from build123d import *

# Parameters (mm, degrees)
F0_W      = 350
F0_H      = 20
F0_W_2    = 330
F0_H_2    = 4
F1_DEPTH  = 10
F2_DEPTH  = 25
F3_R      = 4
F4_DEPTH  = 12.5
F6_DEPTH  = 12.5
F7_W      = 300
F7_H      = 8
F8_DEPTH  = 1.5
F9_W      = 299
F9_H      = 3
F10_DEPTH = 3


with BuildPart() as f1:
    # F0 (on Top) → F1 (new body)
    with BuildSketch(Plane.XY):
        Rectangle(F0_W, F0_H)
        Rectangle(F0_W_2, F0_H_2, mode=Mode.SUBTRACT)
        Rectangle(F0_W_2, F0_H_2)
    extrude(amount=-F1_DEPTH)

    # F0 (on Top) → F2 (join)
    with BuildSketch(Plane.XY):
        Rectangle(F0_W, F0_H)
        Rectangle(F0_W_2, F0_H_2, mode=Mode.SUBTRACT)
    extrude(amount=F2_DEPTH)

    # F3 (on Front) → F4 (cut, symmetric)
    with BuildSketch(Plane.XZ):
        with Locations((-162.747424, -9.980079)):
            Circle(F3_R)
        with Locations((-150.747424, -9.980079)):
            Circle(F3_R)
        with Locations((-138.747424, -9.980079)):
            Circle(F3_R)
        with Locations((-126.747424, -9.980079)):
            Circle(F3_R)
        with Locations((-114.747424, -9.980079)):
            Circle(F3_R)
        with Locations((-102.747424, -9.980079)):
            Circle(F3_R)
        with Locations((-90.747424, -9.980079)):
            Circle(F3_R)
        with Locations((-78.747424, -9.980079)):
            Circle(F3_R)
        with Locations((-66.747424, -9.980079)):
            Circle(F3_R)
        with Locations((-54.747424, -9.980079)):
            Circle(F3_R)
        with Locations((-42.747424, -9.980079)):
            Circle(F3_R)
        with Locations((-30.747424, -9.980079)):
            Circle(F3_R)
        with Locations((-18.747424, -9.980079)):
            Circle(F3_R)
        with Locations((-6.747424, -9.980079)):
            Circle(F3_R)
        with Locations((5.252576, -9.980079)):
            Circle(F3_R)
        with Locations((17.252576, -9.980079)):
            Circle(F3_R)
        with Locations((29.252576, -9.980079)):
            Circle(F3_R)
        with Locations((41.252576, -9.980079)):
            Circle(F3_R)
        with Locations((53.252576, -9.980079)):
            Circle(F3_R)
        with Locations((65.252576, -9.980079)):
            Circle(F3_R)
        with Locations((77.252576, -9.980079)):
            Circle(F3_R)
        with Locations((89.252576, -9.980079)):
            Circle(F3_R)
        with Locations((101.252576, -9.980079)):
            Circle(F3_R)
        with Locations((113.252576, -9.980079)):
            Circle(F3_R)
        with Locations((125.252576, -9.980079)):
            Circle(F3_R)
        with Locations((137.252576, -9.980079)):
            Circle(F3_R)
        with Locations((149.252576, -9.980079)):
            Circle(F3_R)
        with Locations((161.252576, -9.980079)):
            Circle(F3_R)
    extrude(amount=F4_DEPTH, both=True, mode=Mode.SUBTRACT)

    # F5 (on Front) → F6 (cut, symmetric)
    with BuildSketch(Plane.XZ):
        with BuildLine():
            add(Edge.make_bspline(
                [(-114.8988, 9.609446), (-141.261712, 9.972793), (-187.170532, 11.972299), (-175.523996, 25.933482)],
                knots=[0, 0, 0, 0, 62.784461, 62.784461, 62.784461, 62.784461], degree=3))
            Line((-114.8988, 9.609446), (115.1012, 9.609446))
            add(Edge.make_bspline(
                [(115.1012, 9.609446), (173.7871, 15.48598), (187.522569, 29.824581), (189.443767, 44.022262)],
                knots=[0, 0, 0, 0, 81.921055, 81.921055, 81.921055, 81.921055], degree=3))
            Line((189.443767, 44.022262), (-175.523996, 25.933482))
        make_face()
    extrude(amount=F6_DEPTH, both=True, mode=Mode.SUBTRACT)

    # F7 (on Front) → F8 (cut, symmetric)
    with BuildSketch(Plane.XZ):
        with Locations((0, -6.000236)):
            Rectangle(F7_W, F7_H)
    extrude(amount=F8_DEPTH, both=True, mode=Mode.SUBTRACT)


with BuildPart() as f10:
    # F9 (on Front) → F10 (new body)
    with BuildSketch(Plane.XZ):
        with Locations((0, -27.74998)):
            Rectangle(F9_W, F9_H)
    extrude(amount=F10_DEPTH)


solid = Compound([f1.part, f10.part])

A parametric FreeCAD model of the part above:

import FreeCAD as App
import Part
import Sketcher

V = App.Vector

doc = App.newDocument("Part")
params = doc.addObject("Spreadsheet::Sheet", "Params")
for row, (alias, value) in enumerate([
    ("sketch1_width", "350 mm"),
    ("sketch1_height", "20 mm"),
    ("pad1_length", "10 mm"),
    ("sketch2_width", "350 mm"),
    ("sketch2_width2", "330 mm"),
    ("sketch2_height", "20 mm"),
    ("sketch2_height2", "4 mm"),
    ("pad2_length", "25 mm"),
    ("sketch3_diameter", "8 mm"),
    ("pocket1_length", "25 mm"),
    ("pocket2_length", "25 mm"),
    ("sketch5_width", "300 mm"),
    ("sketch5_height", "8 mm"),
    ("pocket3_length", "3 mm"),
    ("sketch6_width", "299 mm"),
    ("sketch6_height", "3 mm"),
    ("pad3_length", "3 mm"),
], start=1):
    params.set(f"A{row}", alias)
    params.set(f"B{row}", "=" + value)
    params.setAlias(f"B{row}", alias)

body = doc.addObject("PartDesign::Body", "Body")

# Sketch on XY plane
sketch1 = body.newObject("Sketcher::SketchObject", "Sketch")
sketch1.AttachmentSupport = (doc.getObject("XY_Plane"), [""])
sketch1.MapMode = "FlatFace"
sketch1.addGeometry([
    Part.LineSegment(V(-175, 10, 0), V(-175, -10, 0)),
    Part.LineSegment(V(-175, -10, 0), V(175, -10, 0)),
    Part.LineSegment(V(175, -10, 0), V(175, 10, 0)),
    Part.LineSegment(V(175, 10, 0), V(-175, 10, 0)),
], False)
sketch1.addConstraint([
    Sketcher.Constraint("Coincident", 0, 2, 1, 1),
    Sketcher.Constraint("Coincident", 1, 2, 2, 1),
    Sketcher.Constraint("Coincident", 2, 2, 3, 1),
    Sketcher.Constraint("Coincident", 3, 2, 0, 1),
    Sketcher.Constraint("Vertical", 0),
    Sketcher.Constraint("Horizontal", 1),
    Sketcher.Constraint("Vertical", 2),
    Sketcher.Constraint("Horizontal", 3),
    Sketcher.Constraint("Symmetric", 0, 2, 2, 2, -1, 1),
    Sketcher.Constraint("DistanceX", 1, 1, 1, 2, 350.0),
    Sketcher.Constraint("DistanceY", 0, 2, 0, 1, 20.0),
])
sketch1.setExpression("Constraints[9]", "Params.sketch1_width")
sketch1.setExpression("Constraints[10]", "Params.sketch1_height")
pad1 = body.newObject("PartDesign::Pad", "Pad")
pad1.Profile = sketch1
pad1.setExpression("Length", "Params.pad1_length")
pad1.Reversed = True

# Sketch on XY plane
sketch2 = body.newObject("Sketcher::SketchObject", "Sketch001")
sketch2.AttachmentSupport = (doc.getObject("XY_Plane"), [""])
sketch2.MapMode = "FlatFace"
sketch2.addGeometry([
    Part.LineSegment(V(-175, 10, 0), V(-175, -10, 0)),  # 0
    Part.LineSegment(V(-175, -10, 0), V(175, -10, 0)),  # 1
    Part.LineSegment(V(175, -10, 0), V(175, 10, 0)),  # 2
    Part.LineSegment(V(175, 10, 0), V(-175, 10, 0)),  # 3
    Part.LineSegment(V(165, -2, 0), V(-165, -2, 0)),  # 4
    Part.LineSegment(V(-165, -2, 0), V(-165, 2, 0)),  # 5
    Part.LineSegment(V(-165, 2, 0), V(165, 2, 0)),  # 6
    Part.LineSegment(V(165, 2, 0), V(165, -2, 0)),  # 7
], False)
sketch2.addConstraint([
    Sketcher.Constraint("Coincident", 0, 2, 1, 1),
    Sketcher.Constraint("Coincident", 1, 2, 2, 1),
    Sketcher.Constraint("Coincident", 2, 2, 3, 1),
    Sketcher.Constraint("Coincident", 3, 2, 0, 1),
    Sketcher.Constraint("Coincident", 4, 2, 5, 1),
    Sketcher.Constraint("Coincident", 5, 2, 6, 1),
    Sketcher.Constraint("Coincident", 6, 2, 7, 1),
    Sketcher.Constraint("Coincident", 7, 2, 4, 1),
    Sketcher.Constraint("Vertical", 0),
    Sketcher.Constraint("Horizontal", 1),
    Sketcher.Constraint("Vertical", 2),
    Sketcher.Constraint("Horizontal", 3),
    Sketcher.Constraint("Horizontal", 4),
    Sketcher.Constraint("Vertical", 5),
    Sketcher.Constraint("Horizontal", 6),
    Sketcher.Constraint("Vertical", 7),
    Sketcher.Constraint("Symmetric", 0, 2, 2, 2, -1, 1),
    Sketcher.Constraint("Symmetric", 4, 2, 6, 2, -1, 1),
    Sketcher.Constraint("DistanceX", 1, 1, 1, 2, 350.0),
    Sketcher.Constraint("DistanceX", 4, 2, 4, 1, 330.0),
    Sketcher.Constraint("DistanceY", 0, 2, 0, 1, 20.0),
    Sketcher.Constraint("DistanceY", 5, 1, 5, 2, 4.0),
])
sketch2.setExpression("Constraints[18]", "Params.sketch2_width")
sketch2.setExpression("Constraints[19]", "Params.sketch2_width2")
sketch2.setExpression("Constraints[20]", "Params.sketch2_height")
sketch2.setExpression("Constraints[21]", "Params.sketch2_height2")
pad2 = body.newObject("PartDesign::Pad", "Pad001")
pad2.Profile = sketch2
pad2.setExpression("Length", "Params.pad2_length")

# Sketch on XZ plane
sketch3 = body.newObject("Sketcher::SketchObject", "Sketch002")
sketch3.AttachmentSupport = (doc.getObject("XZ_Plane"), [""])
sketch3.MapMode = "FlatFace"
sketch3.addGeometry([
    Part.Circle(V(-162.7, -10, 0), V(0, 0, 1), 4),  # 0
    Part.Circle(V(-150.7, -10, 0), V(0, 0, 1), 4),  # 1
    Part.Circle(V(-138.7, -10, 0), V(0, 0, 1), 4),  # 2
    Part.Circle(V(-126.7, -10, 0), V(0, 0, 1), 4),  # 3
    Part.Circle(V(-114.7, -10, 0), V(0, 0, 1), 4),  # 4
    Part.Circle(V(-102.7, -10, 0), V(0, 0, 1), 4),  # 5
    Part.Circle(V(-90.7, -10, 0), V(0, 0, 1), 4),  # 6
    Part.Circle(V(-78.7, -10, 0), V(0, 0, 1), 4),  # 7
    Part.Circle(V(-66.7, -10, 0), V(0, 0, 1), 4),  # 8
    Part.Circle(V(-54.7, -10, 0), V(0, 0, 1), 4),  # 9
    Part.Circle(V(-42.7, -10, 0), V(0, 0, 1), 4),  # 10
    Part.Circle(V(-30.7, -10, 0), V(0, 0, 1), 4),  # 11
    Part.Circle(V(-18.7, -10, 0), V(0, 0, 1), 4),  # 12
    Part.Circle(V(-6.7, -10, 0), V(0, 0, 1), 4),  # 13
    Part.Circle(V(5.3, -10, 0), V(0, 0, 1), 4),  # 14
    Part.Circle(V(17.3, -10, 0), V(0, 0, 1), 4),  # 15
    Part.Circle(V(29.3, -10, 0), V(0, 0, 1), 4),  # 16
    Part.Circle(V(41.3, -10, 0), V(0, 0, 1), 4),  # 17
    Part.Circle(V(53.3, -10, 0), V(0, 0, 1), 4),  # 18
    Part.Circle(V(65.3, -10, 0), V(0, 0, 1), 4),  # 19
    Part.Circle(V(77.3, -10, 0), V(0, 0, 1), 4),  # 20
    Part.Circle(V(89.3, -10, 0), V(0, 0, 1), 4),  # 21
    Part.Circle(V(101.3, -10, 0), V(0, 0, 1), 4),  # 22
    Part.Circle(V(113.3, -10, 0), V(0, 0, 1), 4),  # 23
    Part.Circle(V(125.3, -10, 0), V(0, 0, 1), 4),  # 24
    Part.Circle(V(137.3, -10, 0), V(0, 0, 1), 4),  # 25
    Part.Circle(V(149.3, -10, 0), V(0, 0, 1), 4),  # 26
    Part.Circle(V(161.3, -10, 0), V(0, 0, 1), 4),  # 27
], False)
sketch3.addConstraint([
    Sketcher.Constraint("Equal", 0, 1),
    Sketcher.Constraint("Equal", 1, 2),
    Sketcher.Constraint("Equal", 2, 3),
    Sketcher.Constraint("Equal", 3, 4),
    Sketcher.Constraint("Equal", 4, 5),
    Sketcher.Constraint("Equal", 5, 6),
    Sketcher.Constraint("Equal", 6, 7),
    Sketcher.Constraint("Equal", 7, 8),
    Sketcher.Constraint("Equal", 8, 9),
    Sketcher.Constraint("Equal", 9, 10),
    Sketcher.Constraint("Equal", 10, 11),
    Sketcher.Constraint("Equal", 11, 12),
    Sketcher.Constraint("Equal", 12, 13),
    Sketcher.Constraint("Equal", 13, 14),
    Sketcher.Constraint("Equal", 14, 15),
    Sketcher.Constraint("Equal", 15, 16),
    Sketcher.Constraint("Equal", 16, 17),
    Sketcher.Constraint("Equal", 17, 18),
    Sketcher.Constraint("Equal", 18, 19),
    Sketcher.Constraint("Equal", 19, 20),
    Sketcher.Constraint("Equal", 20, 21),
    Sketcher.Constraint("Equal", 21, 22),
    Sketcher.Constraint("Equal", 22, 23),
    Sketcher.Constraint("Equal", 23, 24),
    Sketcher.Constraint("Equal", 24, 25),
    Sketcher.Constraint("Equal", 25, 26),
    Sketcher.Constraint("Equal", 26, 27),
    Sketcher.Constraint("Horizontal", 0, 3, 1, 3),
    Sketcher.Constraint("Horizontal", 1, 3, 2, 3),
    Sketcher.Constraint("Horizontal", 2, 3, 3, 3),
    Sketcher.Constraint("Horizontal", 3, 3, 4, 3),
    Sketcher.Constraint("Horizontal", 4, 3, 5, 3),
    Sketcher.Constraint("Horizontal", 5, 3, 6, 3),
    Sketcher.Constraint("Horizontal", 6, 3, 7, 3),
    Sketcher.Constraint("Horizontal", 7, 3, 8, 3),
    Sketcher.Constraint("Horizontal", 8, 3, 9, 3),
    Sketcher.Constraint("Horizontal", 9, 3, 10, 3),
    Sketcher.Constraint("Horizontal", 10, 3, 11, 3),
    Sketcher.Constraint("Horizontal", 11, 3, 12, 3),
    Sketcher.Constraint("Horizontal", 12, 3, 13, 3),
    Sketcher.Constraint("Horizontal", 13, 3, 14, 3),
    Sketcher.Constraint("Horizontal", 14, 3, 15, 3),
    Sketcher.Constraint("Horizontal", 15, 3, 16, 3),
    Sketcher.Constraint("Horizontal", 16, 3, 17, 3),
    Sketcher.Constraint("Horizontal", 17, 3, 18, 3),
    Sketcher.Constraint("Horizontal", 18, 3, 19, 3),
    Sketcher.Constraint("Horizontal", 19, 3, 20, 3),
    Sketcher.Constraint("Horizontal", 20, 3, 21, 3),
    Sketcher.Constraint("Horizontal", 21, 3, 22, 3),
    Sketcher.Constraint("Horizontal", 22, 3, 23, 3),
    Sketcher.Constraint("Horizontal", 23, 3, 24, 3),
    Sketcher.Constraint("Horizontal", 24, 3, 25, 3),
    Sketcher.Constraint("Horizontal", 25, 3, 26, 3),
    Sketcher.Constraint("Horizontal", 26, 3, 27, 3),
    Sketcher.Constraint("Diameter", 0, 8.0),
    Sketcher.Constraint("DistanceX", 0, 3, 1, 3, 12.0),
    Sketcher.Constraint("DistanceX", 1, 3, 2, 3, 12.0),
    Sketcher.Constraint("DistanceX", 2, 3, 3, 3, 12.0),
    Sketcher.Constraint("DistanceX", 3, 3, 4, 3, 12.0),
    Sketcher.Constraint("DistanceX", 4, 3, 5, 3, 12.0),
    Sketcher.Constraint("DistanceX", 5, 3, 6, 3, 12.0),
    Sketcher.Constraint("DistanceX", 6, 3, 7, 3, 12.0),
    Sketcher.Constraint("DistanceX", 7, 3, 8, 3, 12.0),
    Sketcher.Constraint("DistanceX", 8, 3, 9, 3, 12.0),
    Sketcher.Constraint("DistanceX", 9, 3, 10, 3, 12.0),
    Sketcher.Constraint("DistanceX", 10, 3, 11, 3, 12.0),
    Sketcher.Constraint("DistanceX", 11, 3, 12, 3, 12.0),
    Sketcher.Constraint("DistanceX", 12, 3, 13, 3, 12.0),
    Sketcher.Constraint("DistanceX", 13, 3, 14, 3, 12.0),
    Sketcher.Constraint("DistanceX", 14, 3, 15, 3, 12.0),
    Sketcher.Constraint("DistanceX", 15, 3, 16, 3, 12.0),
    Sketcher.Constraint("DistanceX", 16, 3, 17, 3, 12.0),
    Sketcher.Constraint("DistanceX", 17, 3, 18, 3, 12.0),
    Sketcher.Constraint("DistanceX", 18, 3, 19, 3, 12.0),
    Sketcher.Constraint("DistanceX", 19, 3, 20, 3, 12.0),
    Sketcher.Constraint("DistanceX", 20, 3, 21, 3, 12.0),
    Sketcher.Constraint("DistanceX", 21, 3, 22, 3, 12.0),
    Sketcher.Constraint("DistanceX", 22, 3, 23, 3, 12.0),
    Sketcher.Constraint("DistanceX", 23, 3, 24, 3, 12.0),
    Sketcher.Constraint("DistanceX", 24, 3, 25, 3, 12.0),
    Sketcher.Constraint("DistanceX", 25, 3, 26, 3, 12.0),
    Sketcher.Constraint("DistanceX", 26, 3, 27, 3, 12.0),
    Sketcher.Constraint("DistanceY", 0, 3, -1, 1, 9.980079),
    Sketcher.Constraint("DistanceX", 0, 3, -1, 1, 162.747424),
])
sketch3.setExpression("Constraints[54]", "Params.sketch3_diameter")
pocket1 = body.newObject("PartDesign::Pocket", "Pocket")
pocket1.Profile = sketch3
pocket1.setExpression("Length", "Params.pocket1_length")
pocket1.Midplane = True

# Sketch on XZ plane
sketch4 = body.newObject("Sketcher::SketchObject", "Sketch003")
sketch4.AttachmentSupport = (doc.getObject("XZ_Plane"), [""])
sketch4.MapMode = "FlatFace"
sketch4.addGeometry([
    Part.BSplineCurve([V(-114.8988, 9.609446, 0), V(-141.261712, 9.972793, 0), V(-187.170532, 11.972299, 0), V(-175.523996, 25.933482, 0)], [4, 4], [0, 62.784461], False, 3, [1, 1, 1, 1], False),
    Part.LineSegment(V(-114.8988, 9.609446, 0), V(115.1012, 9.609446, 0)),
    Part.BSplineCurve([V(115.1012, 9.609446, 0), V(173.7871, 15.48598, 0), V(187.522569, 29.824581, 0), V(189.443767, 44.022262, 0)], [4, 4], [0, 81.921055], False, 3, [1, 1, 1, 1], False),
    Part.LineSegment(V(189.443767, 44.022262, 0), V(-175.523996, 25.933482, 0)),
], False)
sketch4.addConstraint([
    Sketcher.Constraint("Block", 0),
    Sketcher.Constraint("Block", 2),
    Sketcher.Constraint("Coincident", 0, 1, 1, 1),
    Sketcher.Constraint("Coincident", 1, 2, 2, 1),
    Sketcher.Constraint("Coincident", 2, 2, 3, 1),
    Sketcher.Constraint("Coincident", 3, 2, 0, 2),
])
pocket2 = body.newObject("PartDesign::Pocket", "Pocket001")
pocket2.Profile = sketch4
pocket2.setExpression("Length", "Params.pocket2_length")
pocket2.Midplane = True

# Sketch on XZ plane
sketch5 = body.newObject("Sketcher::SketchObject", "Sketch004")
sketch5.AttachmentSupport = (doc.getObject("XZ_Plane"), [""])
sketch5.MapMode = "FlatFace"
sketch5.addGeometry([
    Part.LineSegment(V(-150, -2, 0), V(-150, -10, 0)),
    Part.LineSegment(V(-150, -10, 0), V(150, -10, 0)),
    Part.LineSegment(V(150, -10, 0), V(150, -2, 0)),
    Part.LineSegment(V(150, -2, 0), V(-150, -2, 0)),
], False)
sketch5.addConstraint([
    Sketcher.Constraint("Coincident", 0, 2, 1, 1),
    Sketcher.Constraint("Coincident", 1, 2, 2, 1),
    Sketcher.Constraint("Coincident", 2, 2, 3, 1),
    Sketcher.Constraint("Coincident", 3, 2, 0, 1),
    Sketcher.Constraint("Vertical", 0),
    Sketcher.Constraint("Horizontal", 1),
    Sketcher.Constraint("Vertical", 2),
    Sketcher.Constraint("Horizontal", 3),
    Sketcher.Constraint("DistanceX", 1, 1, 1, 2, 300.0),
    Sketcher.Constraint("DistanceY", 0, 2, 0, 1, 8.0),
    Sketcher.Constraint("DistanceX", 0, 2, -1, 1, 150.0),
    Sketcher.Constraint("DistanceY", 0, 2, -1, 1, 10.000236),
])
sketch5.setExpression("Constraints[8]", "Params.sketch5_width")
sketch5.setExpression("Constraints[9]", "Params.sketch5_height")
pocket3 = body.newObject("PartDesign::Pocket", "Pocket002")
pocket3.Profile = sketch5
pocket3.setExpression("Length", "Params.pocket3_length")
pocket3.Midplane = True
body2 = doc.addObject("PartDesign::Body", "Body001")

# Sketch on XZ plane
sketch6 = body2.newObject("Sketcher::SketchObject", "Sketch005")
sketch6.AttachmentSupport = (doc.getObject("XZ_Plane001"), [""])
sketch6.MapMode = "FlatFace"
sketch6.addGeometry([
    Part.LineSegment(V(-149.5, -26.2, 0), V(-149.5, -29.2, 0)),
    Part.LineSegment(V(-149.5, -29.2, 0), V(149.5, -29.2, 0)),
    Part.LineSegment(V(149.5, -29.2, 0), V(149.5, -26.2, 0)),
    Part.LineSegment(V(149.5, -26.2, 0), V(-149.5, -26.2, 0)),
], False)
sketch6.addConstraint([
    Sketcher.Constraint("Coincident", 0, 2, 1, 1),
    Sketcher.Constraint("Coincident", 1, 2, 2, 1),
    Sketcher.Constraint("Coincident", 2, 2, 3, 1),
    Sketcher.Constraint("Coincident", 3, 2, 0, 1),
    Sketcher.Constraint("Vertical", 0),
    Sketcher.Constraint("Horizontal", 1),
    Sketcher.Constraint("Vertical", 2),
    Sketcher.Constraint("Horizontal", 3),
    Sketcher.Constraint("DistanceX", 1, 1, 1, 2, 299.0),
    Sketcher.Constraint("DistanceY", 0, 2, 0, 1, 3.0),
    Sketcher.Constraint("DistanceX", 0, 2, -1, 1, 149.5),
    Sketcher.Constraint("DistanceY", 0, 2, -1, 1, 29.24998),
])
sketch6.setExpression("Constraints[8]", "Params.sketch6_width")
sketch6.setExpression("Constraints[9]", "Params.sketch6_height")
pad3 = body2.newObject("PartDesign::Pad", "Pad002")
pad3.Profile = sketch6
pad3.setExpression("Length", "Params.pad3_length")

doc.recompute()
